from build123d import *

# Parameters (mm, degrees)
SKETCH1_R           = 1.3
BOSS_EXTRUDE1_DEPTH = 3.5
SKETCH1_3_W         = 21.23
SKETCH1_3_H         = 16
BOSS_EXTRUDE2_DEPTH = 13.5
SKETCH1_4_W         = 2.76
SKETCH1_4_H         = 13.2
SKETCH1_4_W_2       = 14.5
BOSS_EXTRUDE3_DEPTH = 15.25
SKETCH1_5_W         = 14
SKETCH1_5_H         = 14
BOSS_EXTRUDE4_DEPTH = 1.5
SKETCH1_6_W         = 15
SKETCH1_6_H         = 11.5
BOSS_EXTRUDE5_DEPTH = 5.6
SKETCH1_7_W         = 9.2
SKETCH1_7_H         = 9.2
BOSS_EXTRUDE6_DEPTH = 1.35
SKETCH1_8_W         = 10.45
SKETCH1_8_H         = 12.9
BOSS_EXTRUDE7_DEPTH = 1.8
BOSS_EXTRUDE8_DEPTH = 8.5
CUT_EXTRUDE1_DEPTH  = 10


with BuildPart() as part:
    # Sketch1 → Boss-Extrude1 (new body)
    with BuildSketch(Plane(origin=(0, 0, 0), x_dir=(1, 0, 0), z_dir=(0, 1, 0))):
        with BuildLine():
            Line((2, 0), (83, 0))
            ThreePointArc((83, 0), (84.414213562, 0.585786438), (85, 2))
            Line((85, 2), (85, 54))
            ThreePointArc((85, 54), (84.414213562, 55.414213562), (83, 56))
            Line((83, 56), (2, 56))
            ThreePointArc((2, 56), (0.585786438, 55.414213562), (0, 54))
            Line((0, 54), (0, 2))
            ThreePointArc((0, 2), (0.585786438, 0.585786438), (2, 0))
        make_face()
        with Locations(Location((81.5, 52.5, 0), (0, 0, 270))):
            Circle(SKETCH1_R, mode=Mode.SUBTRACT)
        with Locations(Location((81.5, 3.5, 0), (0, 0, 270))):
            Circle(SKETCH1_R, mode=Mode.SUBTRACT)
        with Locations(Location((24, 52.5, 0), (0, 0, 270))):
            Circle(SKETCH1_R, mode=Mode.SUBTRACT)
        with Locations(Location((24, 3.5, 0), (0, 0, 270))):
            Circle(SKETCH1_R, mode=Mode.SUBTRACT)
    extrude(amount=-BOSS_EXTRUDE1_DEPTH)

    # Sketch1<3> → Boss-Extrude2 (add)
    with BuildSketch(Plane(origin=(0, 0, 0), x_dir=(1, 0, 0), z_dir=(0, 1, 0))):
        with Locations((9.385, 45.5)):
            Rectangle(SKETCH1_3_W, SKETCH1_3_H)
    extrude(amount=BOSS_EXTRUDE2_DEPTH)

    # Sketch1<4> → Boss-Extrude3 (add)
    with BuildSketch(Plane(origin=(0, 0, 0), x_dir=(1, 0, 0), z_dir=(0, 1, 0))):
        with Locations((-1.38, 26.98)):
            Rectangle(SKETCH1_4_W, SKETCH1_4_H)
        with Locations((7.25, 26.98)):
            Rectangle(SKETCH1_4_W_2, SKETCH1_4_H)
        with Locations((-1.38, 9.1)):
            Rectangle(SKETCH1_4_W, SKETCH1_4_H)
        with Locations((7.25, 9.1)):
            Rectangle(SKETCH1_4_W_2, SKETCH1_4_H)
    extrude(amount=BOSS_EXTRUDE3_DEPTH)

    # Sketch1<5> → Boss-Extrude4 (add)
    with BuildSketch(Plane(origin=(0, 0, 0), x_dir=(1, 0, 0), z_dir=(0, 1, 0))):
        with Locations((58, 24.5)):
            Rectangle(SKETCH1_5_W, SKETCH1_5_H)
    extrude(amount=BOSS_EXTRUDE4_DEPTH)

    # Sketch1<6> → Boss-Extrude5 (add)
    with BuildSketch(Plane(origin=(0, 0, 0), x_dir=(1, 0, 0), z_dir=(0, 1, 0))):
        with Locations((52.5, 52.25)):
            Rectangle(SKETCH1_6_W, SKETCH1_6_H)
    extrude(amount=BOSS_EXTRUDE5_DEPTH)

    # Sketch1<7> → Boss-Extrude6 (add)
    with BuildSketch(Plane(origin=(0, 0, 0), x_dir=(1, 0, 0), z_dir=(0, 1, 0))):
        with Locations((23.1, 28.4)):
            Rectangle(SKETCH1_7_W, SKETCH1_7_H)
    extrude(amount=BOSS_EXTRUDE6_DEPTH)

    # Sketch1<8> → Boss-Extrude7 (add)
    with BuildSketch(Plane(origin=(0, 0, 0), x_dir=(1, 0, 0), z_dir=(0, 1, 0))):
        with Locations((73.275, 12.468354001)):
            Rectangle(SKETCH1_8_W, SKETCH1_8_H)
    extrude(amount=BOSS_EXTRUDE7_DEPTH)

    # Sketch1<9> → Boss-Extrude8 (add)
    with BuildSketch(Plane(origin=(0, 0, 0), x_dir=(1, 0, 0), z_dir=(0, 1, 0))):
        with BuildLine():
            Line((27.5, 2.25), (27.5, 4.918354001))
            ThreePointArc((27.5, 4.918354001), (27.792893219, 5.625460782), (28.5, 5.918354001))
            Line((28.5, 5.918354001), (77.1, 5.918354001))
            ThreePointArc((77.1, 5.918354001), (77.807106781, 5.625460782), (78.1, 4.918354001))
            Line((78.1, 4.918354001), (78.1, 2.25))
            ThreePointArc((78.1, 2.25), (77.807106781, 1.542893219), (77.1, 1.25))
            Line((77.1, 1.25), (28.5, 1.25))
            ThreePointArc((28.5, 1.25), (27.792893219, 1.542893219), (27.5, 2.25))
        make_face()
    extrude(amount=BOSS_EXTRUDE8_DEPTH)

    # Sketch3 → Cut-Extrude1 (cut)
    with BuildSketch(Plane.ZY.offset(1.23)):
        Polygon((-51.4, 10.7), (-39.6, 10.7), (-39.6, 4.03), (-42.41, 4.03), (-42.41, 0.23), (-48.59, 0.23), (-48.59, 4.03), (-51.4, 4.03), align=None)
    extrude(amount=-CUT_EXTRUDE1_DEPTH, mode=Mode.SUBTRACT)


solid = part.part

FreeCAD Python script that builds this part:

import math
import FreeCAD as App
import Part
import Sketcher
from FreeCAD import Vector
Q = App.Units.Quantity


def add_polygon(sketch, points):
    """Adds a closed chain of lines whose ends are joined by coincident constraints."""
    first, n = sketch.GeometryCount, len(points)
    for a, b in zip(points, points[1:] + points[:1]):
        sketch.addGeometry(Part.LineSegment(App.Vector(*a, 0), App.Vector(*b, 0)), False)
    for i in range(n):
        sketch.addConstraint(Sketcher.Constraint("Coincident", first + i, 2, first + (i + 1) % n, 1))

doc = App.newDocument("Part")
params = doc.addObject("Spreadsheet::Sheet", "Params")
for row, (alias, value) in enumerate([
    ("sketch1_radius", "2 mm"),
    ("sketch1_diameter", "2.6 mm"),
    ("sketch1_width", "81 mm"),
    ("sketch1_height", "52 mm"),
    ("pad1_length", "3.5 mm"),
    ("sketch2_height", "16 mm"),
    ("sketch2_width", "21.23 mm"),
    ("pad2_length", "13.5 mm"),
    ("sketch3_height", "13.2 mm"),
    ("sketch3_width", "17.26 mm"),
    ("pad3_length", "15.25 mm"),
    ("sketch4_width", "14 mm"),
    ("pad4_length", "1.5 mm"),
    ("sketch5_width", "15 mm"),
    ("sketch5_height", "11.5 mm"),
    ("pad5_length", "5.6 mm"),
    ("sketch6_width", "9.2 mm"),
    ("pad6_length", "1.35 mm"),
    ("sketch7_height", "12.9 mm"),
    ("sketch7_width", "10.45 mm"),
    ("pad7_length", "1.8 mm"),
    ("sketch8_radius", "1 mm"),
    ("sketch8_width", "48.6 mm"),
    ("pad8_length", "8.5 mm"),
    ("sketch9_width", "3.8 mm"),
    ("sketch9_height", "11.8 mm"),
    ("sketch9_width2", "6.67 mm"),
    ("sketch9_height2", "2.81 mm"),
    ("pocket1_length", "10 mm"),
], start=1):
    params.set(f"A{row}", alias)
    params.set(f"B{row}", "=" + value)
    params.setAlias(f"B{row}", alias)

body = doc.addObject("PartDesign::Body", "Body")

# Sketch on XZ plane
sketch1 = body.newObject("Sketcher::SketchObject", "Sketch")
sketch1.AttachmentSupport = (doc.getObject("XZ_Plane"), [""])
sketch1.MapMode = "FlatFace"
sketch1.addGeometry(Part.LineSegment(Vector(2, 0, 0), Vector(83, 0, 0)), False)
sketch1.addGeometry(Part.ArcOfCircle(Part.Circle(Vector(83, -2, 0), Vector(0, 0, 1), 2), math.radians(0), math.radians(90)), False)
sketch1.addGeometry(Part.LineSegment(Vector(85, -2, 0), Vector(85, -54, 0)), False)
sketch1.addGeometry(Part.ArcOfCircle(Part.Circle(Vector(83, -54, 0), Vector(0, 0, 1), 2), math.radians(-90), math.radians(0)), False)
sketch1.addGeometry(Part.LineSegment(Vector(83, -56, 0), Vector(2, -56, 0)), False)
sketch1.addGeometry(Part.ArcOfCircle(Part.Circle(Vector(2, -54, 0), Vector(0, 0, 1), 2), math.radians(-180), math.radians(-90)), False)
sketch1.addGeometry(Part.LineSegment(Vector(0, -54, 0), Vector(0, -2, 0)), False)
sketch1.addGeometry(Part.ArcOfCircle(Part.Circle(Vector(2, -2, 0), Vector(0, 0, 1), 2), math.radians(90), math.radians(180)), False)
sketch1.addGeometry(Part.Circle(Vector(24, -3.5, 0), Vector(0, 0, 1), 1.3), False)
sketch1.addGeometry(Part.Circle(Vector(81.5, -3.5, 0), Vector(0, 0, 1), 1.3), False)
sketch1.addGeometry(Part.Circle(Vector(24, -52.5, 0), Vector(0, 0, 1), 1.3), False)
sketch1.addGeometry(Part.Circle(Vector(81.5, -52.5, 0), Vector(0, 0, 1), 1.3), False)
sketch1.addConstraint(Sketcher.Constraint("Tangent", 0, 2, 1, 2))
sketch1.addConstraint(Sketcher.Constraint("Tangent", 1, 1, 2, 1))
sketch1.addConstraint(Sketcher.Constraint("Tangent", 2, 2, 3, 2))
sketch1.addConstraint(Sketcher.Constraint("Tangent", 3, 1, 4, 1))
sketch1.addConstraint(Sketcher.Constraint("Tangent", 4, 2, 5, 2))
sketch1.addConstraint(Sketcher.Constraint("Tangent", 5, 1, 6, 1))
sketch1.addConstraint(Sketcher.Constraint("Tangent", 6, 2, 7, 2))
sketch1.addConstraint(Sketcher.Constraint("Tangent", 7, 1, 0, 1))
sketch1.addConstraint(Sketcher.Constraint("Horizontal", 0))
sketch1.addConstraint(Sketcher.Constraint("Vertical", 2))
sketch1.addConstraint(Sketcher.Constraint("Horizontal", 4))
sketch1.addConstraint(Sketcher.Constraint("Vertical", 6))
sketch1.addConstraint(Sketcher.Constraint("Equal", 1, 3))
sketch1.addConstraint(Sketcher.Constraint("Equal", 3, 5))
sketch1.addConstraint(Sketcher.Constraint("Equal", 5, 7))
sketch1.addConstraint(Sketcher.Constraint("Equal", 8, 9))
sketch1.addConstraint(Sketcher.Constraint("Equal", 9, 10))
sketch1.addConstraint(Sketcher.Constraint("Equal", 10, 11))
sketch1.addConstraint(Sketcher.Constraint("PointOnObject", 0, 2, -1))
sketch1.addConstraint(Sketcher.Constraint("PointOnObject", 5, 1, -2))
sketch1.addConstraint(Sketcher.Constraint("Horizontal", 8, 3, 9, 3))
sketch1.addConstraint(Sketcher.Constraint("Horizontal", 10, 3, 11, 3))
sketch1.addConstraint(Sketcher.Constraint("Vertical", 8, 3, 10, 3))
sketch1.addConstraint(Sketcher.Constraint("Vertical", 9, 3, 11, 3))
sketch1.addConstraint(Sketcher.Constraint("Radius", 1, Q("2 mm")))
sketch1.addConstraint(Sketcher.Constraint("Diameter", 8, Q("2.6 mm")))
sketch1.addConstraint(Sketcher.Constraint("DistanceX", 0, 1, 0, 2, Q("81 mm")))
sketch1.addConstraint(Sketcher.Constraint("DistanceY", 2, 2, 2, 1, Q("52 mm")))
sketch1.addConstraint(Sketcher.Constraint("DistanceX", -1, 1, 8, 3, Q("24 mm")))
sketch1.addConstraint(Sketcher.Constraint("DistanceY", 10, 3, 8, 3, Q("49 mm")))
sketch1.addConstraint(Sketcher.Constraint("DistanceY", 8, 3, -1, 1, Q("3.5 mm")))
sketch1.addConstraint(Sketcher.Constraint("DistanceX", -1, 1, 9, 3, Q("81.5 mm")))
sketch1.setExpression("Constraints[24]", "Params.sketch1_radius")
sketch1.setExpression("Constraints[25]", "Params.sketch1_diameter")
sketch1.setExpression("Constraints[26]", "Params.sketch1_width")
sketch1.setExpression("Constraints[27]", "Params.sketch1_height")
pad1 = body.newObject("PartDesign::Pad", "Pad")
pad1.Profile = sketch1
pad1.setExpression("Length", "Params.pad1_length")

# Sketch on XZ plane
sketch2 = body.newObject("Sketcher::SketchObject", "Sketch001")
sketch2.AttachmentSupport = (doc.getObject("XZ_Plane"), [""])
sketch2.MapMode = "FlatFace"
add_polygon(sketch2, [(-1, -54), (-1, -38), (20, -38), (20, -54)])  # lines 0-3
sketch2.addConstraint(Sketcher.Constraint("Vertical", 0))
sketch2.addConstraint(Sketcher.Constraint("Horizontal", 1))
sketch2.addConstraint(Sketcher.Constraint("Vertical", 2))
sketch2.addConstraint(Sketcher.Constraint("Horizontal", 3))
sketch2.addConstraint(Sketcher.Constraint("DistanceY", 0, 1, 0, 2, Q("16 mm")))
sketch2.addConstraint(Sketcher.Constraint("DistanceX", -1, 1, 1, 2, Q("20 mm")))
sketch2.addConstraint(Sketcher.Constraint("DistanceX", 1, 1, 1, 2, Q("21.23 mm")))
sketch2.addConstraint(Sketcher.Constraint("DistanceY", 0, 2, -1, 1, Q("37.5 mm")))
sketch2.setExpression("Constraints[8]", "Params.sketch2_height")
sketch2.setExpression("Constraints[10]", "Params.sketch2_width")
pad2 = body.newObject("PartDesign::Pad", "Pad001")
pad2.Profile = sketch2
pad2.setExpression("Length", "Params.pad2_length")
pad2.Reversed = True

# Sketch on XZ plane
sketch3 = body.newObject("Sketcher::SketchObject", "Sketch002")
sketch3.AttachmentSupport = (doc.getObject("XZ_Plane"), [""])
sketch3.MapMode = "FlatFace"
add_polygon(sketch3, [(-3, -34), (-3, -20), (14, -20), (14, -34)])  # lines 0-3
add_polygon(sketch3, [(-3, -16), (-3, -2), (14, -2), (14, -16)])  # lines 4-7
sketch3.addConstraint(Sketcher.Constraint("Vertical", 0))
sketch3.addConstraint(Sketcher.Constraint("Horizontal", 1))
sketch3.addConstraint(Sketcher.Constraint("Vertical", 2))
sketch3.addConstraint(Sketcher.Constraint("Horizontal", 3))
sketch3.addConstraint(Sketcher.Constraint("Vertical", 4))
sketch3.addConstraint(Sketcher.Constraint("Horizontal", 5))
sketch3.addConstraint(Sketcher.Constraint("Vertical", 6))
sketch3.addConstraint(Sketcher.Constraint("Horizontal", 7))
sketch3.addConstraint(Sketcher.Constraint("Vertical", 3, 2, 4, 2))
sketch3.addConstraint(Sketcher.Constraint("Vertical", 2, 2, 5, 2))
sketch3.addConstraint(Sketcher.Constraint("Equal", 2, 4))
sketch3.addConstraint(Sketcher.Constraint("DistanceY", 0, 1, 0, 2, Q("13.2 mm")))
sketch3.addConstraint(Sketcher.Constraint("DistanceX", 1, 1, 1, 2, Q("17.26 mm")))
sketch3.addConstraint(Sketcher.Constraint("DistanceX", -1, 1, 1, 2, Q("14.5 mm")))
sketch3.addConstraint(Sketcher.Constraint("DistanceY", 4, 2, -1, 1, Q("2.5 mm")))
sketch3.addConstraint(Sketcher.Constraint("DistanceY", 0, 2, -1, 1, Q("20.38 mm")))
sketch3.setExpression("Constraints[19]", "Params.sketch3_height")
sketch3.setExpression("Constraints[20]", "Params.sketch3_width")
pad3 = body.newObject("PartDesign::Pad", "Pad002")
pad3.Profile = sketch3
pad3.setExpression("Length", "Params.pad3_length")
pad3.Reversed = True

# Sketch on XZ plane
sketch4 = body.newObject("Sketcher::SketchObject", "Sketch003")
sketch4.AttachmentSupport = (doc.getObject("XZ_Plane"), [""])
sketch4.MapMode = "FlatFace"
add_polygon(sketch4, [(51, -32), (51, -18), (65, -18), (65, -32)])  # lines 0-3
sketch4.addConstraint(Sketcher.Constraint("Vertical", 0))
sketch4.addConstraint(Sketcher.Constraint("Horizontal", 1))
sketch4.addConstraint(Sketcher.Constraint("Vertical", 2))
sketch4.addConstraint(Sketcher.Constraint("Horizontal", 3))
sketch4.addConstraint(Sketcher.Constraint("Equal", 3, 0))
sketch4.addConstraint(Sketcher.Constraint("DistanceX", 1, 1, 1, 2, Q("14 mm")))
sketch4.addConstraint(Sketcher.Constraint("DistanceX", -1, 1, 0, 2, Q("51 mm")))
sketch4.addConstraint(Sketcher.Constraint("DistanceY", 0, 2, -1, 1, Q("17.5 mm")))
sketch4.setExpression("Constraints[9]", "Params.sketch4_width")
pad4 = body.newObject("PartDesign::Pad", "Pad003")
pad4.Profile = sketch4
pad4.setExpression("Length", "Params.pad4_length")
pad4.Reversed = True

# Sketch on XZ plane
sketch5 = body.newObject("Sketcher::SketchObject", "Sketch004")
sketch5.AttachmentSupport = (doc.getObject("XZ_Plane"), [""])
sketch5.MapMode = "FlatFace"
add_polygon(sketch5, [(45, -58), (45, -46), (60, -46), (60, -58)])  # lines 0-3
sketch5.addConstraint(Sketcher.Constraint("Vertical", 0))
sketch5.addConstraint(Sketcher.Constraint("Horizontal", 1))
sketch5.addConstraint(Sketcher.Constraint("Vertical", 2))
sketch5.addConstraint(Sketcher.Constraint("Horizontal", 3))
sketch5.addConstraint(Sketcher.Constraint("DistanceX", 1, 1, 1, 2, Q("15 mm")))
sketch5.addConstraint(Sketcher.Constraint("DistanceY", 0, 1, 0, 2, Q("11.5 mm")))
sketch5.addConstraint(Sketcher.Constraint("DistanceX", -1, 1, 0, 2, Q("45 mm")))
sketch5.addConstraint(Sketcher.Constraint("DistanceY", 2, 2, -1, 1, Q("58 mm")))
sketch5.setExpression("Constraints[8]", "Params.sketch5_width")
sketch5.setExpression("Constraints[9]", "Params.sketch5_height")
pad5 = body.newObject("PartDesign::Pad", "Pad004")
pad5.Profile = sketch5
pad5.setExpression("Length", "Params.pad5_length")
pad5.Reversed = True

# Sketch on XZ plane
sketch6 = body.newObject("Sketcher::SketchObject", "Sketch005")
sketch6.AttachmentSupport = (doc.getObject("XZ_Plane"), [""])
sketch6.MapMode = "FlatFace"
add_polygon(sketch6, [(18, -33), (18, -24), (28, -24), (28, -33)])  # lines 0-3
sketch6.addConstraint(Sketcher.Constraint("Vertical", 0))
sketch6.addConstraint(Sketcher.Constraint("Horizontal", 1))
sketch6.addConstraint(Sketcher.Constraint("Vertical", 2))
sketch6.addConstraint(Sketcher.Constraint("Horizontal", 3))
sketch6.addConstraint(Sketcher.Constraint("Equal", 3, 0))
sketch6.addConstraint(Sketcher.Constraint("DistanceX", 1, 1, 1, 2, Q("9.2 mm")))
sketch6.addConstraint(Sketcher.Constraint("DistanceY", 2, 2, -1, 1, Q("33 mm")))
sketch6.addConstraint(Sketcher.Constraint("DistanceX", -1, 1, 0, 2, Q("18.5 mm")))
sketch6.setExpression("Constraints[9]", "Params.sketch6_width")
pad6 = body.newObject("PartDesign::Pad", "Pad005")
pad6.Profile = sketch6
pad6.setExpression("Length", "Params.pad6_length")
pad6.Reversed = True

# Sketch on XZ plane
sketch7 = body.newObject("Sketcher::SketchObject", "Sketch006")
sketch7.AttachmentSupport = (doc.getObject("XZ_Plane"), [""])
sketch7.MapMode = "FlatFace"
add_polygon(sketch7, [(68, -19), (68, -6), (78, -6), (78, -19)])  # lines 0-3
sketch7.addConstraint(Sketcher.Constraint("Vertical", 0))
sketch7.addConstraint(Sketcher.Constraint("Horizontal", 1))
sketch7.addConstraint(Sketcher.Constraint("Vertical", 2))
sketch7.addConstraint(Sketcher.Constraint("Horizontal", 3))
sketch7.addConstraint(Sketcher.Constraint("DistanceY", 0, 1, 0, 2, Q("12.9 mm")))
sketch7.addConstraint(Sketcher.Constraint("DistanceX", 1, 1, 1, 2, Q("10.45 mm")))
sketch7.addConstraint(Sketcher.Constraint("DistanceX", -1, 1, 1, 2, Q("78.5 mm")))
sketch7.addConstraint(Sketcher.Constraint("DistanceY", 0, 2, -1, 1, Q("6.018354 mm")))
sketch7.setExpression("Constraints[8]", "Params.sketch7_height")
sketch7.setExpression("Constraints[9]", "Params.sketch7_width")
pad7 = body.newObject("PartDesign::Pad", "Pad006")
pad7.Profile = sketch7
pad7.setExpression("Length", "Params.pad7_length")
pad7.Reversed = True

# Sketch on XZ plane
sketch8 = body.newObject("Sketcher::SketchObject", "Sketch007")
sketch8.AttachmentSupport = (doc.getObject("XZ_Plane"), [""])
sketch8.MapMode = "FlatFace"
sketch8.addGeometry(Part.LineSegment(Vector(27.5, -4.9, 0), Vector(27.5, -2.2, 0)), False)
sketch8.addGeometry(Part.ArcOfCircle(Part.Circle(Vector(28.5, -2.3, 0), Vector(0, 0, 1), 1), math.radians(90), math.radians(180)), False)
sketch8.addGeometry(Part.LineSegment(Vector(28.5, -1.2, 0), Vector(77.1, -1.2, 0)), False)
sketch8.addGeometry(Part.ArcOfCircle(Part.Circle(Vector(77.1, -2.3, 0), Vector(0, 0, 1), 1), math.radians(0), math.radians(90)), False)
sketch8.addGeometry(Part.LineSegment(Vector(78.1, -2.2, 0), Vector(78.1, -4.9, 0)), False)
sketch8.addGeometry(Part.ArcOfCircle(Part.Circle(Vector(77.1, -4.9, 0), Vector(0, 0, 1), 1), math.radians(-90), math.radians(0)), False)
sketch8.addGeometry(Part.LineSegment(Vector(77.1, -5.9, 0), Vector(28.5, -5.9, 0)), False)
sketch8.addGeometry(Part.ArcOfCircle(Part.Circle(Vector(28.5, -4.9, 0), Vector(0, 0, 1), 1), math.radians(-180), math.radians(-90)), False)
sketch8.addConstraint(Sketcher.Constraint("Tangent", 0, 2, 1, 2))
sketch8.addConstraint(Sketcher.Constraint("Tangent", 1, 1, 2, 1))
sketch8.addConstraint(Sketcher.Constraint("Tangent", 2, 2, 3, 2))
sketch8.addConstraint(Sketcher.Constraint("Tangent", 3, 1, 4, 1))
sketch8.addConstraint(Sketcher.Constraint("Tangent", 4, 2, 5, 2))
sketch8.addConstraint(Sketcher.Constraint("Tangent", 5, 1, 6, 1))
sketch8.addConstraint(Sketcher.Constraint("Tangent", 6, 2, 7, 2))
sketch8.addConstraint(Sketcher.Constraint("Tangent", 7, 1, 0, 1))
sketch8.addConstraint(Sketcher.Constraint("Vertical", 0))
sketch8.addConstraint(Sketcher.Constraint("Horizontal", 2))
sketch8.addConstraint(Sketcher.Constraint("Vertical", 4))
sketch8.addConstraint(Sketcher.Constraint("Horizontal", 6))
sketch8.addConstraint(Sketcher.Constraint("Equal", 1, 3))
sketch8.addConstraint(Sketcher.Constraint("Equal", 3, 5))
sketch8.addConstraint(Sketcher.Constraint("Equal", 5, 7))
sketch8.addConstraint(Sketcher.Constraint("Radius", 1, Q("1 mm")))
sketch8.addConstraint(Sketcher.Constraint("DistanceX", 2, 1, 2, 2, Q("48.6 mm")))
sketch8.addConstraint(Sketcher.Constraint("DistanceX", -1, 1, 1, 3, Q("28.5 mm")))
sketch8.addConstraint(Sketcher.Constraint("DistanceY", 1, 3, -1, 1, Q("2.25 mm")))
sketch8.addConstraint(Sketcher.Constraint("DistanceY", 0, 1, 0, 2, Q("2.668354 mm")))
sketch8.setExpression("Constraints[15]", "Params.sketch8_radius")
sketch8.setExpression("Constraints[16]", "Params.sketch8_width")
pad8 = body.newObject("PartDesign::Pad", "Pad007")
pad8.Profile = sketch8
pad8.setExpression("Length", "Params.pad8_length")
pad8.Reversed = True

# Sketch on YZ plane
sketch9 = body.newObject("Sketcher::SketchObject", "Sketch008")
sketch9.AttachmentSupport = (doc.getObject("YZ_Plane"), [""])
sketch9.MapMode = "FlatFace"
sketch9.AttachmentOffset = App.Placement(Vector(0, 0, -1.23), App.Rotation())
add_polygon(sketch9, [(10.7, -39.6), (10.7, -51.4), (4, -51.4), (4, -48.6), (0.2, -48.6), (0.2, -42.4), (4, -42.4), (4, -39.6)])  # lines 0-7
sketch9.addConstraint(Sketcher.Constraint("Vertical", 0))
sketch9.addConstraint(Sketcher.Constraint("Horizontal", 1))
sketch9.addConstraint(Sketcher.Constraint("Vertical", 2))
sketch9.addConstraint(Sketcher.Constraint("Horizontal", 3))
sketch9.addConstraint(Sketcher.Constraint("Vertical", 4))
sketch9.addConstraint(Sketcher.Constraint("Horizontal", 5))
sketch9.addConstraint(Sketcher.Constraint("Vertical", 6))
sketch9.addConstraint(Sketcher.Constraint("Horizontal", 7))
sketch9.addConstraint(Sketcher.Constraint("Vertical", 2, 2, 5, 2))
sketch9.addConstraint(Sketcher.Constraint("Equal", 2, 6))
sketch9.addConstraint(Sketcher.Constraint("DistanceX", 3, 2, 3, 1, Q("3.8 mm")))
sketch9.addConstraint(Sketcher.Constraint("DistanceY", 0, 2, 0, 1, Q("11.8 mm")))
sketch9.addConstraint(Sketcher.Constraint("DistanceX", 1, 2, 1, 1, Q("6.67 mm")))
sketch9.addConstraint(Sketcher.Constraint("DistanceY", 2, 1, 2, 2, Q("2.81 mm")))
sketch9.addConstraint(Sketcher.Constraint("DistanceX", -1, 1, 0, 2, Q("10.7 mm")))
sketch9.addConstraint(Sketcher.Constraint("DistanceY", 0, 2, -1, 1, Q("51.4 mm")))
sketch9.setExpression("Constraints[18]", "Params.sketch9_width")
sketch9.setExpression("Constraints[19]", "Params.sketch9_height")
sketch9.setExpression("Constraints[20]", "Params.sketch9_width2")
sketch9.setExpression("Constraints[21]", "Params.sketch9_height2")
pocket1 = body.newObject("PartDesign::Pocket", "Pocket")
pocket1.Profile = sketch9
pocket1.setExpression("Length", "Params.pocket1_length")
pocket1.Reversed = True

doc.recompute()
